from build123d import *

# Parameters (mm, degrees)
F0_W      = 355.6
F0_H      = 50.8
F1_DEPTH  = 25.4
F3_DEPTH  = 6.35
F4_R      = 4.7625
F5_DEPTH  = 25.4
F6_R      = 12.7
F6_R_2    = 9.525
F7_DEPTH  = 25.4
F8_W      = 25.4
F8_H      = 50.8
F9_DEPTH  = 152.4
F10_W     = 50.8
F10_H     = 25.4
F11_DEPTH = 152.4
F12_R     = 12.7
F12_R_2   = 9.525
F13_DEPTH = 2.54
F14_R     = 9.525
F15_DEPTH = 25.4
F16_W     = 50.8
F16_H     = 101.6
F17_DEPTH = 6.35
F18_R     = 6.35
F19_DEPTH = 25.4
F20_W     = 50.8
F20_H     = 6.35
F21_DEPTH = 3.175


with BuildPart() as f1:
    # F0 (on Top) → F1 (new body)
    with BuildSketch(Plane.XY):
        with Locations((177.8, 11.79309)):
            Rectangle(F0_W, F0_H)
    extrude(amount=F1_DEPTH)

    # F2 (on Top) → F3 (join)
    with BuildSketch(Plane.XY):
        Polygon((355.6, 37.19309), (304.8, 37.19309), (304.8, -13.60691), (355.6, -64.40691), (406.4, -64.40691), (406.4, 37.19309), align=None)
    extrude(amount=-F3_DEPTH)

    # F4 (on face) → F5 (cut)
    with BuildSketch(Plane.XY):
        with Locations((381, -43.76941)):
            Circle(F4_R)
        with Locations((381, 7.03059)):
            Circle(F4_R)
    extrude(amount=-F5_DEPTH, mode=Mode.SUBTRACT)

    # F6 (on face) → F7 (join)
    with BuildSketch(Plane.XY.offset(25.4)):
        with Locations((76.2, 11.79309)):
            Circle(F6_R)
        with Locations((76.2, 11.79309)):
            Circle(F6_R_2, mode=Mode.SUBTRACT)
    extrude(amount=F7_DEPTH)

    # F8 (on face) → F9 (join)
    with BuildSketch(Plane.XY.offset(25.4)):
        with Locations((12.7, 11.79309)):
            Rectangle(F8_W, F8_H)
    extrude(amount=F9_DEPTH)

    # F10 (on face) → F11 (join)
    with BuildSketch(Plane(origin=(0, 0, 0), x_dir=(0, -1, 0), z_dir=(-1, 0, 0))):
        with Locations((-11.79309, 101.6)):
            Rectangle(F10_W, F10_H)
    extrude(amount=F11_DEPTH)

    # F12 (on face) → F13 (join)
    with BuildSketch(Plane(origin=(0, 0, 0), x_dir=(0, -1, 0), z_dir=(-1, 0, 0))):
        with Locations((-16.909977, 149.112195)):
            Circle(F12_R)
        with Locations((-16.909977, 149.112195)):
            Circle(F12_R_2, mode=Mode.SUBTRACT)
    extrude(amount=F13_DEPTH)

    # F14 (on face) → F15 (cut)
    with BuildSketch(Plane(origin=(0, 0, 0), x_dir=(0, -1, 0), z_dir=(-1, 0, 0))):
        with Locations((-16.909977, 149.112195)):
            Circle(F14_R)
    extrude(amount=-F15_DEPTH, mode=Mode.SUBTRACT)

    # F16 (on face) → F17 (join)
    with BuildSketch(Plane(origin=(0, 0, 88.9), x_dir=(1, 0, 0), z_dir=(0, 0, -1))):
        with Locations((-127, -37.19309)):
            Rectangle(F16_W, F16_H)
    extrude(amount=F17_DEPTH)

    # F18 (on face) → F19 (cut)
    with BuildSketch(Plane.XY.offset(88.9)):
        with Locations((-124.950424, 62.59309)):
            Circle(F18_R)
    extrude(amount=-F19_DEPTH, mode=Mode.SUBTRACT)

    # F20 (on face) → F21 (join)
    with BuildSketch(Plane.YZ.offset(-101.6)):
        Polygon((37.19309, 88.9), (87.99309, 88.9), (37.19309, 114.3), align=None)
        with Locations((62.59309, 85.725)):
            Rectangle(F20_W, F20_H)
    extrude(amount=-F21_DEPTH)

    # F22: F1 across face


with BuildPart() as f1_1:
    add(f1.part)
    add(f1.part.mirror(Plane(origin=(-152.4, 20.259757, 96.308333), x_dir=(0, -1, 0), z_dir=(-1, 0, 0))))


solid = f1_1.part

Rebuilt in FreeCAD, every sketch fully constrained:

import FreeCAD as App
import Part
import Sketcher

V = App.Vector
Q = App.Units.Quantity


def add_polygon(sketch, points):
    """Adds a closed chain of lines whose ends are joined by coincident constraints."""
    first, n = sketch.GeometryCount, len(points)
    for a, b in zip(points, points[1:] + points[:1]):
        sketch.addGeometry(Part.LineSegment(App.Vector(*a, 0), App.Vector(*b, 0)), False)
    for i in range(n):
        sketch.addConstraint(Sketcher.Constraint("Coincident", first + i, 2, first + (i + 1) % n, 1))

doc = App.newDocument("Part")
params = doc.addObject("Spreadsheet::Sheet", "Params")
for row, (alias, value) in enumerate([
    ("sketch1_width", "14 in"),
    ("sketch1_height", "2 in"),
    ("pad1_length", "1 in"),
    ("sketch2_width", "2 in"),
    ("sketch2_width2", "4 in"),
    ("pad2_length", "0.25 in"),
    ("sketch3_diameter", "0.375 in"),
    ("pocket1_length", "1 in"),
    ("sketch4_diameter", "1 in"),
    ("sketch4_diameter2", "0.75 in"),
    ("pad3_length", "1 in"),
    ("sketch5_width", "1 in"),
    ("sketch5_height", "2 in"),
    ("pad4_length", "6 in"),
    ("sketch6_width", "2 in"),
    ("sketch6_height", "1 in"),
    ("pad5_length", "6 in"),
    ("sketch7_diameter", "1 in"),
    ("sketch7_diameter2", "0.75 in"),
    ("pad6_length", "0.1 in"),
    ("sketch8_diameter", "0.75 in"),
    ("pocket2_length", "1 in"),
    ("sketch9_width", "2 in"),
    ("sketch9_height", "4 in"),
    ("pad7_length", "0.25 in"),
    ("sketch10_diameter", "0.5 in"),
    ("pocket3_length", "1 in"),
    ("sketch11_width", "2 in"),
    ("sketch11_height", "1.25 in"),
    ("pad8_length", "0.125 in"),
], start=1):
    params.set(f"A{row}", alias)
    params.set(f"B{row}", "=" + value)
    params.setAlias(f"B{row}", alias)

body = doc.addObject("PartDesign::Body", "Body")

sketch1 = body.newObject("Sketcher::SketchObject", "Sketch")
sketch1.AttachmentSupport = (doc.getObject("XY_Plane"), [""])
sketch1.MapMode = "FlatFace"
add_polygon(sketch1, [(0, 37), (0, -14), (356, -14), (356, 37)])
sketch1.addConstraint([
    Sketcher.Constraint("Vertical", 0),
    Sketcher.Constraint("Horizontal", 1),
    Sketcher.Constraint("Vertical", 2),
    Sketcher.Constraint("Horizontal", 3),
    Sketcher.Constraint("PointOnObject", 0, 2, -2),
    Sketcher.Constraint("DistanceX", 1, 1, 1, 2, Q("14 in")),
    Sketcher.Constraint("DistanceY", 0, 2, 0, 1, Q("2 in")),
    Sketcher.Constraint("DistanceY", 0, 2, -1, 1, Q("13.60691 mm")),
])
sketch1.setExpression("Constraints[9]", "Params.sketch1_width")
sketch1.setExpression("Constraints[10]", "Params.sketch1_height")
pad1 = body.newObject("PartDesign::Pad", "Pad")
pad1.Profile = sketch1
pad1.setExpression("Length", "Params.pad1_length")

sketch2 = body.newObject("Sketcher::SketchObject", "Sketch001")
sketch2.AttachmentSupport = (doc.getObject("XY_Plane"), [""])
sketch2.MapMode = "FlatFace"
add_polygon(sketch2, [(305, 37), (305, -14), (356, -64), (406, -64), (406, 37)])
sketch2.addConstraint([
    Sketcher.Constraint("Vertical", 0),
    Sketcher.Constraint("Horizontal", 2),
    Sketcher.Constraint("Vertical", 3),
    Sketcher.Constraint("Horizontal", 4),
    Sketcher.Constraint("Equal", 2, 0),
    Sketcher.Constraint("Equal", 4, 3),
    Sketcher.Constraint("DistanceX", 2, 1, 2, 2, Q("2 in")),
    Sketcher.Constraint("DistanceX", 4, 2, 4, 1, Q("4 in")),
    Sketcher.Constraint("DistanceX", -1, 1, 0, 2, Q("12 in")),
    Sketcher.Constraint("DistanceY", 0, 2, -1, 1, Q("13.60691 mm")),
])
sketch2.setExpression("Constraints[11]", "Params.sketch2_width")
sketch2.setExpression("Constraints[12]", "Params.sketch2_width2")
pad2 = body.newObject("PartDesign::Pad", "Pad001")
pad2.Profile = sketch2
pad2.setExpression("Length", "Params.pad2_length")
pad2.Reversed = True

sketch3 = body.newObject("Sketcher::SketchObject", "Sketch002")
sketch3.AttachmentSupport = (doc.getObject("XY_Plane"), [""])
sketch3.MapMode = "FlatFace"
sketch3.addGeometry([
    Part.Circle(V(381, -43.8, 0), V(0, 0, 1), 4.8),
    Part.Circle(V(381, 7, 0), V(0, 0, 1), 4.8),
], False)
sketch3.addConstraint([
    Sketcher.Constraint("Equal", 0, 1),
    Sketcher.Constraint("Vertical", 0, 3, 1, 3),
    Sketcher.Constraint("Diameter", 0, Q("0.375 in")),
    Sketcher.Constraint("DistanceX", -1, 1, 0, 3, Q("15 in")),
    Sketcher.Constraint("DistanceY", 0, 3, 1, 3, Q("2 in")),
    Sketcher.Constraint("DistanceY", 0, 3, -1, 1, Q("43.76941 mm")),
])
sketch3.setExpression("Constraints[2]", "Params.sketch3_diameter")
pocket1 = body.newObject("PartDesign::Pocket", "Pocket")
pocket1.Profile = sketch3
pocket1.setExpression("Length", "Params.pocket1_length")

sketch4 = body.newObject("Sketcher::SketchObject", "Sketch003")
sketch4.AttachmentSupport = (doc.getObject("XY_Plane"), [""])
sketch4.MapMode = "FlatFace"
sketch4.AttachmentOffset = App.Placement(V(0, 0, 1 * 25.4), App.Rotation())
sketch4.addGeometry([
    Part.Circle(V(76, 12, 0), V(0, 0, 1), 13),
    Part.Circle(V(76, 12, 0), V(0, 0, 1), 10),
], False)
sketch4.addConstraint([
    Sketcher.Constraint("Coincident", 1, 3, 0, 3),
    Sketcher.Constraint("Diameter", 0, Q("1 in")),
    Sketcher.Constraint("Diameter", 1, Q("0.75 in")),
    Sketcher.Constraint("DistanceX", -1, 1, 0, 3, Q("3 in")),
    Sketcher.Constraint("DistanceY", -1, 1, 0, 3, Q("11.79309 mm")),
])
sketch4.setExpression("Constraints[1]", "Params.sketch4_diameter")
sketch4.setExpression("Constraints[2]", "Params.sketch4_diameter2")
pad3 = body.newObject("PartDesign::Pad", "Pad002")
pad3.Profile = sketch4
pad3.setExpression("Length", "Params.pad3_length")

sketch5 = body.newObject("Sketcher::SketchObject", "Sketch004")
sketch5.AttachmentSupport = (doc.getObject("XY_Plane"), [""])
sketch5.MapMode = "FlatFace"
sketch5.AttachmentOffset = App.Placement(V(0, 0, 1 * 25.4), App.Rotation())
add_polygon(sketch5, [(0, 37), (0, -14), (25, -14), (25, 37)])
sketch5.addConstraint([
    Sketcher.Constraint("Vertical", 0),
    Sketcher.Constraint("Horizontal", 1),
    Sketcher.Constraint("Vertical", 2),
    Sketcher.Constraint("Horizontal", 3),
    Sketcher.Constraint("PointOnObject", 0, 2, -2),
    Sketcher.Constraint("DistanceX", 1, 1, 1, 2, Q("1 in")),
    Sketcher.Constraint("DistanceY", 0, 2, 0, 1, Q("2 in")),
    Sketcher.Constraint("DistanceY", 0, 2, -1, 1, Q("13.60691 mm")),
])
sketch5.setExpression("Constraints[9]", "Params.sketch5_width")
sketch5.setExpression("Constraints[10]", "Params.sketch5_height")
pad4 = body.newObject("PartDesign::Pad", "Pad003")
pad4.Profile = sketch5
pad4.setExpression("Length", "Params.pad4_length")

sketch6 = body.newObject("Sketcher::SketchObject", "Sketch005")
sketch6.AttachmentSupport = (doc.getObject("YZ_Plane"), [""])
sketch6.MapMode = "FlatFace"
add_polygon(sketch6, [(37, 114), (37, 89), (-14, 89), (-14, 114)])
sketch6.addConstraint([
    Sketcher.Constraint("Vertical", 0),
    Sketcher.Constraint("Horizontal", 1),
    Sketcher.Constraint("Vertical", 2),
    Sketcher.Constraint("Horizontal", 3),
    Sketcher.Constraint("DistanceX", 1, 2, 1, 1, Q("2 in")),
    Sketcher.Constraint("DistanceY", 0, 2, 0, 1, Q("1 in")),
    Sketcher.Constraint("DistanceY", -1, 1, 0, 2, Q("3.5 in")),
    Sketcher.Constraint("DistanceX", -1, 1, 0, 2, Q("37.19309 mm")),
])
sketch6.setExpression("Constraints[8]", "Params.sketch6_width")
sketch6.setExpression("Constraints[9]", "Params.sketch6_height")
pad5 = body.newObject("PartDesign::Pad", "Pad004")
pad5.Profile = sketch6
pad5.setExpression("Length", "Params.pad5_length")
pad5.Reversed = True

sketch7 = body.newObject("Sketcher::SketchObject", "Sketch006")
sketch7.AttachmentSupport = (doc.getObject("YZ_Plane"), [""])
sketch7.MapMode = "FlatFace"
sketch7.addGeometry([
    Part.Circle(V(17, 149, 0), V(0, 0, 1), 13),
    Part.Circle(V(17, 149, 0), V(0, 0, 1), 10),
], False)
sketch7.addConstraint([
    Sketcher.Constraint("Coincident", 1, 3, 0, 3),
    Sketcher.Constraint("Diameter", 0, Q("1 in")),
    Sketcher.Constraint("Diameter", 1, Q("0.75 in")),
    Sketcher.Constraint("DistanceX", -1, 1, 0, 3, Q("16.909977 mm")),
    Sketcher.Constraint("DistanceY", -1, 1, 0, 3, Q("149.112195 mm")),
])
sketch7.setExpression("Constraints[1]", "Params.sketch7_diameter")
sketch7.setExpression("Constraints[2]", "Params.sketch7_diameter2")
pad6 = body.newObject("PartDesign::Pad", "Pad005")
pad6.Profile = sketch7
pad6.setExpression("Length", "Params.pad6_length")
pad6.Reversed = True

sketch8 = body.newObject("Sketcher::SketchObject", "Sketch007")
sketch8.AttachmentSupport = (doc.getObject("YZ_Plane"), [""])
sketch8.MapMode = "FlatFace"
sketch8.addGeometry(Part.Circle(V(17, 149, 0), V(0, 0, 1), 10), False)
sketch8.addConstraint([
    Sketcher.Constraint("Diameter", 0, Q("0.75 in")),
    Sketcher.Constraint("DistanceX", -1, 1, 0, 3, Q("16.909977 mm")),
    Sketcher.Constraint("DistanceY", -1, 1, 0, 3, Q("149.112195 mm")),
])
sketch8.setExpression("Constraints[0]", "Params.sketch8_diameter")
pocket2 = body.newObject("PartDesign::Pocket", "Pocket001")
pocket2.Profile = sketch8
pocket2.setExpression("Length", "Params.pocket2_length")
pocket2.Reversed = True

sketch9 = body.newObject("Sketcher::SketchObject", "Sketch008")
sketch9.AttachmentSupport = (doc.getObject("XY_Plane"), [""])
sketch9.MapMode = "FlatFace"
sketch9.AttachmentOffset = App.Placement(V(0, 0, 3.5 * 25.4), App.Rotation())
add_polygon(sketch9, [(-152, -14), (-152, 88), (-102, 88), (-102, -14)])
sketch9.addConstraint([
    Sketcher.Constraint("Vertical", 0),
    Sketcher.Constraint("Horizontal", 1),
    Sketcher.Constraint("Vertical", 2),
    Sketcher.Constraint("Horizontal", 3),
    Sketcher.Constraint("DistanceX", 1, 1, 1, 2, Q("2 in")),
    Sketcher.Constraint("DistanceY", 0, 1, 0, 2, Q("4 in")),
    Sketcher.Constraint("DistanceX", 0, 2, -1, 1, Q("6 in")),
    Sketcher.Constraint("DistanceY", -1, 1, 0, 2, Q("87.99309 mm")),
])
sketch9.setExpression("Constraints[8]", "Params.sketch9_width")
sketch9.setExpression("Constraints[9]", "Params.sketch9_height")
pad7 = body.newObject("PartDesign::Pad", "Pad006")
pad7.Profile = sketch9
pad7.setExpression("Length", "Params.pad7_length")
pad7.Reversed = True

sketch10 = body.newObject("Sketcher::SketchObject", "Sketch009")
sketch10.AttachmentSupport = (doc.getObject("XY_Plane"), [""])
sketch10.MapMode = "FlatFace"
sketch10.AttachmentOffset = App.Placement(V(0, 0, 3.5 * 25.4), App.Rotation())
sketch10.addGeometry(Part.Circle(V(-125, 63, 0), V(0, 0, 1), 6), False)
sketch10.addConstraint([
    Sketcher.Constraint("Diameter", 0, Q("0.5 in")),
    Sketcher.Constraint("DistanceY", -1, 1, 0, 3, Q("62.59309 mm")),
    Sketcher.Constraint("DistanceX", 0, 3, -1, 1, Q("124.950424 mm")),
])
sketch10.setExpression("Constraints[0]", "Params.sketch10_diameter")
pocket3 = body.newObject("PartDesign::Pocket", "Pocket002")
pocket3.Profile = sketch10
pocket3.setExpression("Length", "Params.pocket3_length")

sketch11 = body.newObject("Sketcher::SketchObject", "Sketch010")
sketch11.AttachmentSupport = (doc.getObject("YZ_Plane"), [""])
sketch11.MapMode = "FlatFace"
sketch11.AttachmentOffset = App.Placement(V(0, 0, -4 * 25.4), App.Rotation())
add_polygon(sketch11, [(88, 89), (37, 114), (37, 83), (88, 83)])
sketch11.addConstraint([
    Sketcher.Constraint("Vertical", 1),
    Sketcher.Constraint("Horizontal", 2),
    Sketcher.Constraint("Vertical", 3),
    Sketcher.Constraint("DistanceX", 2, 1, 2, 2, Q("2 in")),
    Sketcher.Constraint("DistanceY", 3, 2, 0, 2, Q("1 in")),
    Sketcher.Constraint("DistanceY", 1, 2, 1, 1, Q("1.25 in")),
    Sketcher.Constraint("DistanceY", -1, 1, 0, 2, Q("4.5 in")),
    Sketcher.Constraint("DistanceX", -1, 1, 0, 2, Q("37.19309 mm")),
])
sketch11.setExpression("Constraints[7]", "Params.sketch11_width")
sketch11.setExpression("Constraints[9]", "Params.sketch11_height")
pad8 = body.newObject("PartDesign::Pad", "Pad007")
pad8.Profile = sketch11
pad8.setExpression("Length", "Params.pad8_length")
pad8.Reversed = True
body2 = doc.addObject("PartDesign::Body", "Body001")
doc.recompute()

body2.BaseFeature = body
doc.recompute()

mirroring = doc.addObject("Part::Mirroring", "Mirroring")
mirroring.Source = body
mirroring.Base = V(-152.4, 20.259757, 96.308333)
mirroring.Normal = V(-1, 0, 0)
body3 = doc.addObject("PartDesign::Body", "Body002")
body3.BaseFeature = mirroring
boolean = body2.newObject("PartDesign::Boolean", "Boolean")
boolean.Type = "Fuse"
boolean.addObjects([body3])
doc.recompute()
mirroring.Visibility = False

doc.recompute()
